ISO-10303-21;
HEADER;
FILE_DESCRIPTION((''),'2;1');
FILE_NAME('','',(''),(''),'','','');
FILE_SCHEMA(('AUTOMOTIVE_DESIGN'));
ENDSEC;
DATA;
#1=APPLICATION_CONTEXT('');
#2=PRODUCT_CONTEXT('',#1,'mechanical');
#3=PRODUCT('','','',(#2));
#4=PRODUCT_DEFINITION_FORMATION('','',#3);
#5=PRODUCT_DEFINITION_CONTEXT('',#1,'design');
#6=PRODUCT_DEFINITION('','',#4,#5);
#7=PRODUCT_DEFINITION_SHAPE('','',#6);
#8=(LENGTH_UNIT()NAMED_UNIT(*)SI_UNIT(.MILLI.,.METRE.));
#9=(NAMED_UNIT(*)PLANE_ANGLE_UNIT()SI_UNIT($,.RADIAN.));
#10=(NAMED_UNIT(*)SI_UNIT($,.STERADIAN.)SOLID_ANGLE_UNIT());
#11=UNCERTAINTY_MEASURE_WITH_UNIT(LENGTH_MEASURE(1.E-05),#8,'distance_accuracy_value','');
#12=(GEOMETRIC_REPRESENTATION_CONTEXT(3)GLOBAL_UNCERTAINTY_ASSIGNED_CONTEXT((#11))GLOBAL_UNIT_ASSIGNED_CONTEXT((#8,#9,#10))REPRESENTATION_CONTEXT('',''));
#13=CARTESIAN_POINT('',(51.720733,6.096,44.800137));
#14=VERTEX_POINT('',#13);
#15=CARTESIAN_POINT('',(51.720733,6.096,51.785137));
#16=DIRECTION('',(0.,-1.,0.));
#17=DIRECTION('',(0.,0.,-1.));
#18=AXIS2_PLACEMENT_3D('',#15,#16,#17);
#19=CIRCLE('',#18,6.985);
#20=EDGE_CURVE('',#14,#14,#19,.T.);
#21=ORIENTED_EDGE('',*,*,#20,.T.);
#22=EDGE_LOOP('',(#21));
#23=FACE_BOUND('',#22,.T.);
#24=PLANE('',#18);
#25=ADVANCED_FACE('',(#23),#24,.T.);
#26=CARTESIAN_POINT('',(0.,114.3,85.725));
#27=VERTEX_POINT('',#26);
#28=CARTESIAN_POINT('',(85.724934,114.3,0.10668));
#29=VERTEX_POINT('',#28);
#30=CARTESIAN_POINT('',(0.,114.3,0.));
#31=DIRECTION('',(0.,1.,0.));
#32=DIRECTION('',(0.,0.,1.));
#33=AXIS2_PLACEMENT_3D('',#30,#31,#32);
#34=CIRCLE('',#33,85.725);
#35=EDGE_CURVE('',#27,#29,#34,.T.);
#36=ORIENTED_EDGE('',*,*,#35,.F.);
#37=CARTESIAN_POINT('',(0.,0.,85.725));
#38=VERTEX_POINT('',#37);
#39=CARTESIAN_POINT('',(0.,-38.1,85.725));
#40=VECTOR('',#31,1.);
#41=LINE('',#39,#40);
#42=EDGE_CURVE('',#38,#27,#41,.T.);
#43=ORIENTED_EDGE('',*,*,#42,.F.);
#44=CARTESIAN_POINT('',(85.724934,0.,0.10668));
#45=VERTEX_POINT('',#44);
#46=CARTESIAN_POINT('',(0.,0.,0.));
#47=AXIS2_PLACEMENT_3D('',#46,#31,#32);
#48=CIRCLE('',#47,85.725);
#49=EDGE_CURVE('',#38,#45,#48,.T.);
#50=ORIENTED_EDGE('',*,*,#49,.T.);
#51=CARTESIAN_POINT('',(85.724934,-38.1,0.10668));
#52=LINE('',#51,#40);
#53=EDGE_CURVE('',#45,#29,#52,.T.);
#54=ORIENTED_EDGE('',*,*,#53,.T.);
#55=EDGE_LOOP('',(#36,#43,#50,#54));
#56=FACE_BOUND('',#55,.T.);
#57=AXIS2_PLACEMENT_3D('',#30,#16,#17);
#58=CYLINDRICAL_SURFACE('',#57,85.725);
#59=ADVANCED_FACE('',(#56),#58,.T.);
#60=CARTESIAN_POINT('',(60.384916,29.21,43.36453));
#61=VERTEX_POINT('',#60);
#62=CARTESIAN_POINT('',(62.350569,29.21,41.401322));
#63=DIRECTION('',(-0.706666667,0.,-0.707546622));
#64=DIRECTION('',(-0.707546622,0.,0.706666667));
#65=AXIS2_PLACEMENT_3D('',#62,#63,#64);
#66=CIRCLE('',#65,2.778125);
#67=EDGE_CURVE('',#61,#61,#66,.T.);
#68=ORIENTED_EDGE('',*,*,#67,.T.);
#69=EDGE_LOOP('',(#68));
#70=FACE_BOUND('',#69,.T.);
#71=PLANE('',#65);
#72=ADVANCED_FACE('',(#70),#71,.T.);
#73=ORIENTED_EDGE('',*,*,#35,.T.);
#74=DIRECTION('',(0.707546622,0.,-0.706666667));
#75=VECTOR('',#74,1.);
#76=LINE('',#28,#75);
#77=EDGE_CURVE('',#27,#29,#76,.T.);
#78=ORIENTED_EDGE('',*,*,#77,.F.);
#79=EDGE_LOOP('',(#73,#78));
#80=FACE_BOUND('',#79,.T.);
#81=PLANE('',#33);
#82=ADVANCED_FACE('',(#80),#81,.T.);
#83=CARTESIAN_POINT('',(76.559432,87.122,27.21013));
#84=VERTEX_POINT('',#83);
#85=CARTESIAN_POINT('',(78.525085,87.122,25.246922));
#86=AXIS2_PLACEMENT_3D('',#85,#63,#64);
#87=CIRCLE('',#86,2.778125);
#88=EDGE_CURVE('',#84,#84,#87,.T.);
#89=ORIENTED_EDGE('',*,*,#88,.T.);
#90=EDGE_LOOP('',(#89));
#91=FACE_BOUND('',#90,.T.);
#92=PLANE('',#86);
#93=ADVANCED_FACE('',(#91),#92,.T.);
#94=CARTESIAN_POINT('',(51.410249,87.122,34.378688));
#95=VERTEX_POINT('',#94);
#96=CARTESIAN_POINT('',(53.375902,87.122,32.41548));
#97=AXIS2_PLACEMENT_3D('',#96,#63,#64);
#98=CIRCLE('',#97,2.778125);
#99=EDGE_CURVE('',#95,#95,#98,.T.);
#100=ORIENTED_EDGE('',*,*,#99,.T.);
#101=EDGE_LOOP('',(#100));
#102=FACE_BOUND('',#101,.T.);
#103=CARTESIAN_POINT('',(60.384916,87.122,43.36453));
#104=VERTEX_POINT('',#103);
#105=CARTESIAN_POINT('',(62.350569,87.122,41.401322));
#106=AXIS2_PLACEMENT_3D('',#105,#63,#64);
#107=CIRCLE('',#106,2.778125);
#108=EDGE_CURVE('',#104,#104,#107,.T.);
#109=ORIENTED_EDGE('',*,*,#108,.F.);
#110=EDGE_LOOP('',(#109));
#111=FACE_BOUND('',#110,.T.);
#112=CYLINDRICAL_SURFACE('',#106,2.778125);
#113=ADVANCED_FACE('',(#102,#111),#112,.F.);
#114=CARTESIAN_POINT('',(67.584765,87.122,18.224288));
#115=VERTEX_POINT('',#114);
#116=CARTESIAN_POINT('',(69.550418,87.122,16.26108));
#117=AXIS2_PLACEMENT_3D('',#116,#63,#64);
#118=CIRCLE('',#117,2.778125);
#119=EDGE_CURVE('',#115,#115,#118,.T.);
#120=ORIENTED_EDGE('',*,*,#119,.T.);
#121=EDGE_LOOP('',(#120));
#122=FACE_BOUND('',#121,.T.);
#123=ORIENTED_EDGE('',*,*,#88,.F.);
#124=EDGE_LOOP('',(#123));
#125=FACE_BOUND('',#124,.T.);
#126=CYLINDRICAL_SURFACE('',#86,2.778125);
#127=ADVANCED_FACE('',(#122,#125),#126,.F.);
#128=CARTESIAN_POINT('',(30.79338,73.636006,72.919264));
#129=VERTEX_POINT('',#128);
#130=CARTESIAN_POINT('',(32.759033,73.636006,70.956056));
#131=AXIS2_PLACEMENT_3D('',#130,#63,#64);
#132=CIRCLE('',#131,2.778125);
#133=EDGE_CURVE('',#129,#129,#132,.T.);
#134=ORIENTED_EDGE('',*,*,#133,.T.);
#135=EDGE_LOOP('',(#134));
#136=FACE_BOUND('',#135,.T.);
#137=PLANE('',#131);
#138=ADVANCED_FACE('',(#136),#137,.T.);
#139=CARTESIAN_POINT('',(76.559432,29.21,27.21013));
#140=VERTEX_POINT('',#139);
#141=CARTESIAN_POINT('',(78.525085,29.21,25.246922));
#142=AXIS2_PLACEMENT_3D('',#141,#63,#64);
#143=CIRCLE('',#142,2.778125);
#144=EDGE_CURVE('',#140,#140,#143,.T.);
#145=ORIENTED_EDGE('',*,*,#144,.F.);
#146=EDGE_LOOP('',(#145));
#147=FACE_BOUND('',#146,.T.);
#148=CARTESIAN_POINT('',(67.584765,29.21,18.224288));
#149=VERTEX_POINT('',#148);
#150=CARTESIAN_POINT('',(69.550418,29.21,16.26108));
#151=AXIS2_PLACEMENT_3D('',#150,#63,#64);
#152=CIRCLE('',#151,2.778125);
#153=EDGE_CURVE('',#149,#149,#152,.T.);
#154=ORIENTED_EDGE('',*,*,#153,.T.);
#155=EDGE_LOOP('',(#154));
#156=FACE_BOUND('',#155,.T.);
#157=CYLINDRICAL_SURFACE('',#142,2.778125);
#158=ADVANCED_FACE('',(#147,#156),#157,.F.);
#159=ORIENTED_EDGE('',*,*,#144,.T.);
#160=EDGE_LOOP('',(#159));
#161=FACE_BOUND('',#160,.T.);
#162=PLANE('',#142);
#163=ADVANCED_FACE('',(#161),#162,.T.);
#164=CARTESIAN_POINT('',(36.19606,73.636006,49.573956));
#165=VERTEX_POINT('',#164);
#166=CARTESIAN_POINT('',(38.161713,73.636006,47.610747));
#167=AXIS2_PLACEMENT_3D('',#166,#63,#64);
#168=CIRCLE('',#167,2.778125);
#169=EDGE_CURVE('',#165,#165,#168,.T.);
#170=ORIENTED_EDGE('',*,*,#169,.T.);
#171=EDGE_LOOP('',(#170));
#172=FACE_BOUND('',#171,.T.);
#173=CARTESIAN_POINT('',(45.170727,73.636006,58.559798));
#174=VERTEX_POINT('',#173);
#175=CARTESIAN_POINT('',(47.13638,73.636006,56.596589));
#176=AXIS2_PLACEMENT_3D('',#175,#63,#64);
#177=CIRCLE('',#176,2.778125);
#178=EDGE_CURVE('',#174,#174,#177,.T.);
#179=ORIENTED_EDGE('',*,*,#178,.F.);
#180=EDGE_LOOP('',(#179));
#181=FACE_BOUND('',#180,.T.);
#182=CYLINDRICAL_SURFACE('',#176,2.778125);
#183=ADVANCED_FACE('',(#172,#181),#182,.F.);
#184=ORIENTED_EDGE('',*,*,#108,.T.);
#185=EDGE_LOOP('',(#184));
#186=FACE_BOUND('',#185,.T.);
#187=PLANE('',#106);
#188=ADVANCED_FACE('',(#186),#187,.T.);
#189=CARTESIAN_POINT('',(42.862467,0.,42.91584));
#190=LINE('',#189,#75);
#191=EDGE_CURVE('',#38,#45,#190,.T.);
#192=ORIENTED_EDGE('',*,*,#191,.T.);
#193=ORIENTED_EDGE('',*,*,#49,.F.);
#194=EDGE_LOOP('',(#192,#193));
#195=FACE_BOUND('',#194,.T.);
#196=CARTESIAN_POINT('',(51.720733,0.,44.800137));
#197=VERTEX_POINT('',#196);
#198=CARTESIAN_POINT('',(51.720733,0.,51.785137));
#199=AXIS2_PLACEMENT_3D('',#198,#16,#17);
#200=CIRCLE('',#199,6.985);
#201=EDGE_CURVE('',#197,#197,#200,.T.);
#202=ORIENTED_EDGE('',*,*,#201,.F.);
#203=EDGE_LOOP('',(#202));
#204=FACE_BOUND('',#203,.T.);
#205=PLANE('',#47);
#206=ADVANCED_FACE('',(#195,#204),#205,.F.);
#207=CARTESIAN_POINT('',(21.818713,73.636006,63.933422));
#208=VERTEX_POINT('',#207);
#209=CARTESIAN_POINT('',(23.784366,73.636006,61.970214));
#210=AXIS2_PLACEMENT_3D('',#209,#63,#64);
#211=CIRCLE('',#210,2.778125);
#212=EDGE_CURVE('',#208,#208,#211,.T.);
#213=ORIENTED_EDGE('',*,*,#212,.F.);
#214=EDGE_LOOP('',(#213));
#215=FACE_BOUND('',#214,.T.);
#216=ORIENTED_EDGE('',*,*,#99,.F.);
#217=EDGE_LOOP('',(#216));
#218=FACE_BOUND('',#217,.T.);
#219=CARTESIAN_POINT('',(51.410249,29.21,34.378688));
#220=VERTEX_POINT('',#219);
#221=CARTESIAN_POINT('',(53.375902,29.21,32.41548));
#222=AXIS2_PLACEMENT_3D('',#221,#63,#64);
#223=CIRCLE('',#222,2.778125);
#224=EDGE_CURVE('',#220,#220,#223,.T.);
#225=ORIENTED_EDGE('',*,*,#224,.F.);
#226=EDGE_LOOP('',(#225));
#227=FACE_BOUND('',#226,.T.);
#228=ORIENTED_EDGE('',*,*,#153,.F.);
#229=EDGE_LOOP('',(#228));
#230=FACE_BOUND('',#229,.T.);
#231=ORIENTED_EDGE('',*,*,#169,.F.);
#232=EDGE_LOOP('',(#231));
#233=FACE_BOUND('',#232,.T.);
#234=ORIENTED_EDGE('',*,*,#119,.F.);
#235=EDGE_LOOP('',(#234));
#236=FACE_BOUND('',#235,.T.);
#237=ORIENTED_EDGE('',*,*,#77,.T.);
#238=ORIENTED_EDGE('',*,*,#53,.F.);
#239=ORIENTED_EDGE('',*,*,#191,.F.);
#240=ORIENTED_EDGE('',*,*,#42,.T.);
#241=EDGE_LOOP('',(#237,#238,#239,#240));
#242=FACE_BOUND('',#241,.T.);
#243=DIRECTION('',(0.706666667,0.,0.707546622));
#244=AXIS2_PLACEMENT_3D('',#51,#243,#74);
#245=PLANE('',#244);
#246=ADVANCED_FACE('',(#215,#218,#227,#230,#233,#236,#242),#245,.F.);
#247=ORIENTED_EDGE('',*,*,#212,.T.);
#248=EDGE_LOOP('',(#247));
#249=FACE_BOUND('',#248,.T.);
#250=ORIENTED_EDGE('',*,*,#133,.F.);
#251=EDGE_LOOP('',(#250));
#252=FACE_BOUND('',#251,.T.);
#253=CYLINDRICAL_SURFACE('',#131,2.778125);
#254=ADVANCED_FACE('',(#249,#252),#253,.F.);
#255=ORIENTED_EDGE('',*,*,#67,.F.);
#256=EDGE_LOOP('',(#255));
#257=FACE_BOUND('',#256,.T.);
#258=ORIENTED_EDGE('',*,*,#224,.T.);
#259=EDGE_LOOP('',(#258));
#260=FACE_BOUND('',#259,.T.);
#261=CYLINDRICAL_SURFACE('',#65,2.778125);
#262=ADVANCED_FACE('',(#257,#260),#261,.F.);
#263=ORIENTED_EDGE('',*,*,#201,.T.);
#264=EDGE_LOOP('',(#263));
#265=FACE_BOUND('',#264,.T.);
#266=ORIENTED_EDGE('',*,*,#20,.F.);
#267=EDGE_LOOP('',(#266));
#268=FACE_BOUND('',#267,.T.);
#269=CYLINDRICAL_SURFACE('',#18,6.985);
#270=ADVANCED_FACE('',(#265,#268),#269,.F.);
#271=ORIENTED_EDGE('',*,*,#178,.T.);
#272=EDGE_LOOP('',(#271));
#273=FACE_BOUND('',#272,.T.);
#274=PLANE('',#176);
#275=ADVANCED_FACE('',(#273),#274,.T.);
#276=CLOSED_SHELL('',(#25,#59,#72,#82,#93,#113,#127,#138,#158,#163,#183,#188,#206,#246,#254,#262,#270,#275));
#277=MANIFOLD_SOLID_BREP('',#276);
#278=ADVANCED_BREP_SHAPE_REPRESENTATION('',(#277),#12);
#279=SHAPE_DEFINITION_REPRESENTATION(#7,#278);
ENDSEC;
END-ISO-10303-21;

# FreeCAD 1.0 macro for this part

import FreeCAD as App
import Part
import Sketcher

V = App.Vector
Q = App.Units.Quantity


def add_polygon(sketch, points):
    """Adds a closed chain of lines whose ends are joined by coincident constraints."""
    first, n = sketch.GeometryCount, len(points)
    for a, b in zip(points, points[1:] + points[:1]):
        sketch.addGeometry(Part.LineSegment(App.Vector(*a, 0), App.Vector(*b, 0)), False)
    for i in range(n):
        sketch.addConstraint(Sketcher.Constraint("Coincident", first + i, 2, first + (i + 1) % n, 1))

doc = App.newDocument("Part")
body = doc.addObject("PartDesign::Body", "Body")

sketch1 = body.newObject("Sketcher::SketchObject", "Sketch")
sketch1.AttachmentSupport = (doc.getObject("XZ_Plane"), [""])
sketch1.MapMode = "FlatFace"
sketch1.addGeometry(Part.Circle(V(0, 0, 0), V(0, 0, 1), 86), False)
sketch1.addConstraint(Sketcher.Constraint("Coincident", 0, 3, -1, 1))
sketch1.addConstraint(Sketcher.Constraint("Diameter", 0, Q("6.75 in")))
pad1 = body.newObject("PartDesign::Pad", "Pad")
pad1.Profile = sketch1
pad1.Length = Q("4.5 in")
pad1.Reversed = True

sketch2 = body.newObject("Sketcher::SketchObject", "Sketch001")
sketch2.AttachmentSupport = (doc.getObject("XZ_Plane"), [""])
sketch2.MapMode = "FlatFace"
sketch2.AttachmentOffset = App.Placement(V(0, 0, -4.5 * 25.4), App.Rotation())
add_polygon(sketch2, [(0, 86), (86, 0), (110, -31), (19, -102), (-137, -46), (-46, 97)])
sketch2.addConstraint(Sketcher.Constraint("PointOnObject", 5, 2, -2))
sketch2.addConstraint(Sketcher.Constraint("Distance", 0, Q("4.77 in")))
sketch2.addConstraint(Sketcher.Constraint("DistanceY", -1, 1, 5, 2, Q("3.375 in")))
sketch2.addConstraint(Sketcher.Constraint("DistanceY", -1, 1, 0, 2, Q("0.0042 in")))
sketch2.addConstraint(Sketcher.Constraint("DistanceX", -1, 1, 2, 2, 19.125301))
sketch2.addConstraint(Sketcher.Constraint("DistanceY", 0, 2, 4, 2, 96.6127))
sketch2.addConstraint(Sketcher.Constraint("Distance", 1, 39.040629))
sketch2.addConstraint(Sketcher.Constraint("Distance", 4, 169.841122))
sketch2.addConstraint(Sketcher.Constraint("DistanceY", 1, 2, -1, 1, 30.600482))
sketch2.addConstraint(Sketcher.Constraint("DistanceX", 3, 2, -1, 1, 137.42895))
sketch2.addConstraint(Sketcher.Constraint("DistanceY", 3, 2, -1, 1, 46.173941))
sketch2.addConstraint(Sketcher.Constraint("DistanceY", 2, 2, 1, 2, 71.310051))
pocket1 = body.newObject("PartDesign::Pocket", "Pocket")
pocket1.Profile = sketch2
pocket1.Length = Q("6 in")
pocket1.Reversed = True

sketch3 = body.newObject("Sketcher::SketchObject", "Sketch002")
sketch3.Placement = App.Placement(V(42.862467, 0, 42.91584), App.Rotation(V(-0.707546622, 0, 0.706666667), V(0, 1.000000001, 0), V(-0.706666667, 0, -0.707546622), "ZXY"))
sketch3.addGeometry(Part.Circle(V(-37.7, 87.1, 0), V(0, 0, 1), 2.8), False)
sketch3.addGeometry(Part.Circle(V(-14.9, 87.1, 0), V(0, 0, 1), 2.8), False)
sketch3.addGeometry(Part.Circle(V(-37.7, 29.2, 0), V(0, 0, 1), 2.8), False)
sketch3.addGeometry(Part.Circle(V(-14.9, 29.2, 0), V(0, 0, 1), 2.8), False)
sketch3.addGeometry(Part.Circle(V(6.6, 73.6, 0), V(0, 0, 1), 2.8), False)
sketch3.addGeometry(Part.Circle(V(27, 73.6, 0), V(0, 0, 1), 2.8), False)
sketch3.addConstraint(Sketcher.Constraint("Equal", 0, 1))
sketch3.addConstraint(Sketcher.Constraint("Equal", 1, 2))
sketch3.addConstraint(Sketcher.Constraint("Equal", 2, 3))
sketch3.addConstraint(Sketcher.Constraint("Equal", 3, 4))
sketch3.addConstraint(Sketcher.Constraint("Equal", 4, 5))
sketch3.addConstraint(Sketcher.Constraint("Horizontal", 0, 3, 1, 3))
sketch3.addConstraint(Sketcher.Constraint("Horizontal", 2, 3, 3, 3))
sketch3.addConstraint(Sketcher.Constraint("Horizontal", 4, 3, 5, 3))
sketch3.addConstraint(Sketcher.Constraint("Vertical", 0, 3, 2, 3))
sketch3.addConstraint(Sketcher.Constraint("Vertical", 1, 3, 3, 3))
sketch3.addConstraint(Sketcher.Constraint("Diameter", 0, Q("0.21875 in")))
sketch3.addConstraint(Sketcher.Constraint("DistanceX", 0, 3, 1, 3, Q("0.9 in")))
sketch3.addConstraint(Sketcher.Constraint("DistanceX", 4, 3, 5, 3, Q("0.8 in")))
sketch3.addConstraint(Sketcher.Constraint("DistanceY", -1, 1, 0, 3, Q("3.43 in")))
sketch3.addConstraint(Sketcher.Constraint("DistanceY", -1, 1, 2, 3, Q("1.15 in")))
sketch3.addConstraint(Sketcher.Constraint("DistanceX", 0, 3, -1, 1, Q("1.485 in")))
sketch3.addConstraint(Sketcher.Constraint("DistanceX", -1, 1, 4, 3, 6.643737))
sketch3.addConstraint(Sketcher.Constraint("DistanceY", -1, 1, 4, 3, 73.636006))
pocket2 = body.newObject("PartDesign::Pocket", "Pocket001")
pocket2.Profile = sketch3
pocket2.Length = Q("0.5 in")

sketch4 = body.newObject("Sketcher::SketchObject", "Sketch003")
sketch4.AttachmentSupport = (doc.getObject("XZ_Plane"), [""])
sketch4.MapMode = "FlatFace"
sketch4.addGeometry(Part.Circle(V(52, 52, 0), V(0, 0, 1), 7), False)
sketch4.addConstraint(Sketcher.Constraint("Diameter", 0, Q("0.55 in")))
sketch4.addConstraint(Sketcher.Constraint("DistanceX", -1, 1, 0, 3, 51.720733))
sketch4.addConstraint(Sketcher.Constraint("DistanceY", -1, 1, 0, 3, 51.785137))
pocket3 = body.newObject("PartDesign::Pocket", "Pocket002")
pocket3.Profile = sketch4
pocket3.Length = Q("0.24 in")

doc.recompute()
